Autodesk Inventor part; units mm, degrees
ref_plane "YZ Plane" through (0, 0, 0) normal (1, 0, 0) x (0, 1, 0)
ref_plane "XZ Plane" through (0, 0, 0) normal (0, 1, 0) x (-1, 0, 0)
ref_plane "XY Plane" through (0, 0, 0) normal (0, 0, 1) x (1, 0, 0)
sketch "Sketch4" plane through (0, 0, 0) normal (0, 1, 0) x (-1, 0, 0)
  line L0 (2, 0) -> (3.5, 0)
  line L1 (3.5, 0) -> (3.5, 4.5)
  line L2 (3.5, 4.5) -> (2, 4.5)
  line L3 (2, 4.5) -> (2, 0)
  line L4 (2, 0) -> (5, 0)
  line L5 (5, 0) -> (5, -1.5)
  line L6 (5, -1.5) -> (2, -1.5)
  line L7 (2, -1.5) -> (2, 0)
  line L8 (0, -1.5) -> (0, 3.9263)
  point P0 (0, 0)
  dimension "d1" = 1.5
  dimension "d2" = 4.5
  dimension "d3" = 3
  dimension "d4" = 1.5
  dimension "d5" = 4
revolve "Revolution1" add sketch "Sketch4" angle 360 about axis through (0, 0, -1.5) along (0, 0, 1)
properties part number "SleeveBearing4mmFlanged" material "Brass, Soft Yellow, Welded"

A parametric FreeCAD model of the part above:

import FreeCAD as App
import Part
import Sketcher

V = App.Vector
Q = App.Units.Quantity

doc = App.newDocument("Part")
body = doc.addObject("PartDesign::Body", "Body")

sketch1 = body.newObject("Sketcher::SketchObject", "Sketch")
sketch1.AttachmentSupport = (doc.getObject("XZ_Plane"), [""])
sketch1.MapMode = "FlatFace"
sketch1.addGeometry(Part.LineSegment(V(-2, 4.5, 0), V(-2, -1.5, 0)), False)
sketch1.addGeometry(Part.LineSegment(V(-2, -1.5, 0), V(-5, -1.5, 0)), False)
sketch1.addGeometry(Part.LineSegment(V(-5, -1.5, 0), V(-5, 0, 0)), False)
sketch1.addGeometry(Part.LineSegment(V(-5, 0, 0), V(-3.5, 0, 0)), False)
sketch1.addGeometry(Part.LineSegment(V(-3.5, 0, 0), V(-3.5, 4.5, 0)), False)
sketch1.addGeometry(Part.LineSegment(V(-3.5, 4.5, 0), V(-2, 4.5, 0)), False)
sketch1.addConstraint(Sketcher.Constraint("Coincident", 0, 2, 1, 1))
sketch1.addConstraint(Sketcher.Constraint("Coincident", 1, 2, 2, 1))
sketch1.addConstraint(Sketcher.Constraint("Coincident", 2, 2, 3, 1))
sketch1.addConstraint(Sketcher.Constraint("Coincident", 3, 2, 4, 1))
sketch1.addConstraint(Sketcher.Constraint("Coincident", 4, 2, 5, 1))
sketch1.addConstraint(Sketcher.Constraint("Coincident", 5, 2, 0, 1))
sketch1.addConstraint(Sketcher.Constraint("Vertical", 0))
sketch1.addConstraint(Sketcher.Constraint("Horizontal", 1))
sketch1.addConstraint(Sketcher.Constraint("Vertical", 2))
sketch1.addConstraint(Sketcher.Constraint("Horizontal", 3))
sketch1.addConstraint(Sketcher.Constraint("Vertical", 4))
sketch1.addConstraint(Sketcher.Constraint("Horizontal", 5))
sketch1.addConstraint(Sketcher.Constraint("PointOnObject", 2, 2, -1))
sketch1.addConstraint(Sketcher.Constraint("Equal", 3, 5))
sketch1.addConstraint(Sketcher.Constraint("Equal", 5, 2))
sketch1.addConstraint(Sketcher.Constraint("DistanceX", 1, 2, 1, 1, Q("3 mm")))
sketch1.addConstraint(Sketcher.Constraint("DistanceY", 4, 1, 4, 2, Q("4.5 mm")))
sketch1.addConstraint(Sketcher.Constraint("DistanceX", 0, 2, -1, 1, Q("2 mm")))
revolution = body.newObject("PartDesign::Revolution", "Revolution")
revolution.Profile = sketch1
revolution.ReferenceAxis = (sketch1, ["V_Axis"])
revolution.Angle = 360

doc.recompute()
